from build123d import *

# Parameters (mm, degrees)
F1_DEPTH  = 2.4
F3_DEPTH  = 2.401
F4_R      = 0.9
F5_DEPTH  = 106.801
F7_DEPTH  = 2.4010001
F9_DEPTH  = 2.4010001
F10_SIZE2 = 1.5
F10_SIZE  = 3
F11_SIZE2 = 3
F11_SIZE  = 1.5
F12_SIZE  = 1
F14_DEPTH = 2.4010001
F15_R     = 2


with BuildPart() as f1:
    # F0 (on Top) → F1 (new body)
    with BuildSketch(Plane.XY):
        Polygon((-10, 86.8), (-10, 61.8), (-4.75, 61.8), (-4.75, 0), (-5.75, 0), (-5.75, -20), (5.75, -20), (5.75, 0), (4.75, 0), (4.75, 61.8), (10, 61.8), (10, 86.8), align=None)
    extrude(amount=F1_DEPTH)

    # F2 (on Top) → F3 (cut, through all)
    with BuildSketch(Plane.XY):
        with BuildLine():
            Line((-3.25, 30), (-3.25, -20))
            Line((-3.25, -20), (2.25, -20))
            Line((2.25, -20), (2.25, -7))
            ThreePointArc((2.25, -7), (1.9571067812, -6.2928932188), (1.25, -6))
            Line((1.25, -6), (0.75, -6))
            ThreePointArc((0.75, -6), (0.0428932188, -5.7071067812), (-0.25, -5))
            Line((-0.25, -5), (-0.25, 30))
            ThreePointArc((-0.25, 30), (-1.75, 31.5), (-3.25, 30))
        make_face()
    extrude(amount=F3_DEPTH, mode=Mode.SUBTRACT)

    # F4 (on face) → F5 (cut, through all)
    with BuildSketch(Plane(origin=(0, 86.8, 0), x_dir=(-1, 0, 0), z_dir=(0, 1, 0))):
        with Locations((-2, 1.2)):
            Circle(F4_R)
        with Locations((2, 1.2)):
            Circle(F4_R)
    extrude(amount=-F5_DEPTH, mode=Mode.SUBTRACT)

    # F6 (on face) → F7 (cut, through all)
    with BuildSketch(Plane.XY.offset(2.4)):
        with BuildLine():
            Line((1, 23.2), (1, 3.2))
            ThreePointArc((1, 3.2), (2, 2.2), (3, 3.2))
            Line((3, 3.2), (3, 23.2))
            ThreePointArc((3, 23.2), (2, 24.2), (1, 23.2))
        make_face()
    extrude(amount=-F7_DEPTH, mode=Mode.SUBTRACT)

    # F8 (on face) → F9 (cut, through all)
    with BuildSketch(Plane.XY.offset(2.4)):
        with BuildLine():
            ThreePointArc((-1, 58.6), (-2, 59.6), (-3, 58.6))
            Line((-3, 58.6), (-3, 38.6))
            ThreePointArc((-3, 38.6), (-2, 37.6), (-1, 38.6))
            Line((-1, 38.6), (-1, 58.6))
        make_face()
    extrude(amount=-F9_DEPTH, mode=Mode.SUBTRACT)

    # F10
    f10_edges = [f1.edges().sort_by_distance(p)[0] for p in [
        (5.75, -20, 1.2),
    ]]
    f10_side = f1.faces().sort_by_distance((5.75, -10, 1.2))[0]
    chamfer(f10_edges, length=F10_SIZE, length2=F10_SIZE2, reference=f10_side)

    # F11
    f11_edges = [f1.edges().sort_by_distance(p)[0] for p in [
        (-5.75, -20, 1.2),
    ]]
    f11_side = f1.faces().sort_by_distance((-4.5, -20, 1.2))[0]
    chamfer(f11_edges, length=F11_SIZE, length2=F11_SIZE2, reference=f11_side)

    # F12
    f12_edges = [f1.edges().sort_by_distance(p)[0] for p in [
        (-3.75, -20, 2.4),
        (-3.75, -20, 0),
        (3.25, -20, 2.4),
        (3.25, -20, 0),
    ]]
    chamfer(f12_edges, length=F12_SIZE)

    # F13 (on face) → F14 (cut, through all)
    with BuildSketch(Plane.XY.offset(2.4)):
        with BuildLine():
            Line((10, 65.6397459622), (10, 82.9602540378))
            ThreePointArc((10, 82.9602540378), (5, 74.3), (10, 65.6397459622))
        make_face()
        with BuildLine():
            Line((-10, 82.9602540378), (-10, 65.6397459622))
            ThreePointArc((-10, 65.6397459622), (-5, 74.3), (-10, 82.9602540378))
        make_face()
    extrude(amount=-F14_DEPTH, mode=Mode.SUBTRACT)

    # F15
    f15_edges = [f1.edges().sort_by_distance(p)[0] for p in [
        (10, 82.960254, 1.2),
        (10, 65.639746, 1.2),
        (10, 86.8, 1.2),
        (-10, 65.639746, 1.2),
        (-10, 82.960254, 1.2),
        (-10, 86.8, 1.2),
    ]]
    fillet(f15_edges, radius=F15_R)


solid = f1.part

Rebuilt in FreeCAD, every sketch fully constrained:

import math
import FreeCAD as App
import Part
import Sketcher


def edges_at(feature, points):
    """Names of the edges that pass closest to the given points."""
    edges = feature.Shape.Edges
    near = lambda p: min(range(len(edges)), key=lambda i: edges[i].distToShape(Part.Vertex(*p))[0])
    return sorted({f"Edge{near(p) + 1}" for p in points})


def add_polygon(sketch, points):
    """Adds a closed chain of lines whose ends are joined by coincident constraints."""
    first, n = sketch.GeometryCount, len(points)
    for a, b in zip(points, points[1:] + points[:1]):
        sketch.addGeometry(Part.LineSegment(App.Vector(*a, 0), App.Vector(*b, 0)), False)
    for i in range(n):
        sketch.addConstraint(Sketcher.Constraint("Coincident", first + i, 2, first + (i + 1) % n, 1))

doc = App.newDocument("Part")
body = doc.addObject("PartDesign::Body", "Body")

sketch1 = body.newObject("Sketcher::SketchObject", "Sketch")
sketch1.AttachmentSupport = (doc.getObject("XY_Plane"), [""])
sketch1.MapMode = "FlatFace"
add_polygon(sketch1, [(-10, 86.8), (-10, 61.8), (-4.8, 61.8), (-4.8, 0), (-5.8, 0), (-5.8, -20), (5.8, -20), (5.8, 0), (4.8, 0), (4.8, 61.8), (10, 61.8), (10, 86.8)])
sketch1.addConstraint(Sketcher.Constraint("Vertical", 0))
sketch1.addConstraint(Sketcher.Constraint("Horizontal", 1))
sketch1.addConstraint(Sketcher.Constraint("Vertical", 2))
sketch1.addConstraint(Sketcher.Constraint("Horizontal", 3))
sketch1.addConstraint(Sketcher.Constraint("Vertical", 4))
sketch1.addConstraint(Sketcher.Constraint("Horizontal", 5))
sketch1.addConstraint(Sketcher.Constraint("Vertical", 6))
sketch1.addConstraint(Sketcher.Constraint("Horizontal", 7))
sketch1.addConstraint(Sketcher.Constraint("Vertical", 8))
sketch1.addConstraint(Sketcher.Constraint("Horizontal", 9))
sketch1.addConstraint(Sketcher.Constraint("Vertical", 10))
sketch1.addConstraint(Sketcher.Constraint("Horizontal", 11))
sketch1.addConstraint(Sketcher.Constraint("Symmetric", 3, 2, 6, 2, -1, 1))
sketch1.addConstraint(Sketcher.Constraint("Symmetric", 2, 2, 7, 2, -2))
sketch1.addConstraint(Sketcher.Constraint("Symmetric", 0, 2, 9, 2, -2))
sketch1.addConstraint(Sketcher.Constraint("Equal", 11, 4))
sketch1.addConstraint(Sketcher.Constraint("DistanceX", 3, 2, 3, 1, 1.0))
sketch1.addConstraint(Sketcher.Constraint("DistanceX", 11, 2, 11, 1, 20.0))
sketch1.addConstraint(Sketcher.Constraint("DistanceY", 0, 2, 0, 1, 25.0))
sketch1.addConstraint(Sketcher.Constraint("DistanceX", 5, 1, 5, 2, 11.5))
sketch1.addConstraint(Sketcher.Constraint("DistanceY", 2, 2, 2, 1, 61.8))
pad1 = body.newObject("PartDesign::Pad", "Pad")
pad1.Profile = sketch1
pad1.Length = 2.4

sketch2 = body.newObject("Sketcher::SketchObject", "Sketch001")
sketch2.AttachmentSupport = (doc.getObject("XY_Plane"), [""])
sketch2.MapMode = "FlatFace"
sketch2.addGeometry(Part.LineSegment(App.Vector(-3.2, 30, 0), App.Vector(-3.2, -20, 0)), False)
sketch2.addGeometry(Part.LineSegment(App.Vector(-3.2, -20, 0), App.Vector(2.2, -20, 0)), False)
sketch2.addGeometry(Part.LineSegment(App.Vector(2.2, -20, 0), App.Vector(2.2, -7, 0)), False)
sketch2.addGeometry(Part.ArcOfCircle(Part.Circle(App.Vector(1.2, -7, 0), App.Vector(0, 0, 1), 1), math.radians(0), math.radians(90)), False)
sketch2.addGeometry(Part.LineSegment(App.Vector(1.2, -6, 0), App.Vector(0.8, -6, 0)), False)
sketch2.addGeometry(Part.ArcOfCircle(Part.Circle(App.Vector(0.8, -5, 0), App.Vector(0, 0, 1), 1), math.radians(180), math.radians(270)), False)
sketch2.addGeometry(Part.LineSegment(App.Vector(-0.2, -5, 0), App.Vector(-0.2, 30, 0)), False)
sketch2.addGeometry(Part.ArcOfCircle(Part.Circle(App.Vector(-1.8, 30, 0), App.Vector(0, 0, 1), 1.5), math.radians(0), math.radians(180)), False)
sketch2.addConstraint(Sketcher.Constraint("Coincident", 0, 2, 1, 1))
sketch2.addConstraint(Sketcher.Constraint("Coincident", 1, 2, 2, 1))
sketch2.addConstraint(Sketcher.Constraint("Tangent", 2, 2, 3, 1))
sketch2.addConstraint(Sketcher.Constraint("Tangent", 3, 2, 4, 1))
sketch2.addConstraint(Sketcher.Constraint("Tangent", 4, 2, 5, 2))
sketch2.addConstraint(Sketcher.Constraint("Tangent", 5, 1, 6, 1))
sketch2.addConstraint(Sketcher.Constraint("Tangent", 6, 2, 7, 1))
sketch2.addConstraint(Sketcher.Constraint("Tangent", 7, 2, 0, 1))
sketch2.addConstraint(Sketcher.Constraint("Vertical", 0))
sketch2.addConstraint(Sketcher.Constraint("Horizontal", 1))
sketch2.addConstraint(Sketcher.Constraint("Vertical", 2))
sketch2.addConstraint(Sketcher.Constraint("Horizontal", 4))
sketch2.addConstraint(Sketcher.Constraint("Vertical", 6))
sketch2.addConstraint(Sketcher.Constraint("Equal", 3, 5))
sketch2.addConstraint(Sketcher.Constraint("Radius", 3, 1.0))
sketch2.addConstraint(Sketcher.Constraint("Radius", 7, 1.5))
sketch2.addConstraint(Sketcher.Constraint("DistanceY", 0, 2, 0, 1, 50.0))
sketch2.addConstraint(Sketcher.Constraint("DistanceY", 2, 1, 2, 2, 13.0))
sketch2.addConstraint(Sketcher.Constraint("DistanceX", 1, 1, 1, 2, 5.5))
sketch2.addConstraint(Sketcher.Constraint("DistanceY", 3, 3, -1, 1, 7.0))
sketch2.addConstraint(Sketcher.Constraint("DistanceX", -1, 1, 3, 3, 1.25))
pocket1 = body.newObject("PartDesign::Pocket", "Pocket")
pocket1.Profile = sketch2
pocket1.Type = "ThroughAll"
pocket1.Reversed = True

sketch3 = body.newObject("Sketcher::SketchObject", "Sketch002")
sketch3.AttachmentSupport = (doc.getObject("XZ_Plane"), [""])
sketch3.MapMode = "FlatFace"
sketch3.AttachmentOffset = App.Placement(App.Vector(0, 0, -86.8), App.Rotation())
sketch3.addGeometry(Part.Circle(App.Vector(2, 1.2, 0), App.Vector(0, 0, 1), 0.9), False)
sketch3.addGeometry(Part.Circle(App.Vector(-2, 1.2, 0), App.Vector(0, 0, 1), 0.9), False)
sketch3.addConstraint(Sketcher.Constraint("Equal", 0, 1))
sketch3.addConstraint(Sketcher.Constraint("Symmetric", 0, 3, 1, 3, -2))
sketch3.addConstraint(Sketcher.Constraint("Diameter", 0, 1.8))
sketch3.addConstraint(Sketcher.Constraint("DistanceX", -1, 1, 0, 3, 2.0))
sketch3.addConstraint(Sketcher.Constraint("DistanceY", -1, 1, 0, 3, 1.2))
pocket2 = body.newObject("PartDesign::Pocket", "Pocket001")
pocket2.Profile = sketch3
pocket2.Type = "ThroughAll"
pocket2.Reversed = True

sketch4 = body.newObject("Sketcher::SketchObject", "Sketch003")
sketch4.AttachmentSupport = (doc.getObject("XY_Plane"), [""])
sketch4.MapMode = "FlatFace"
sketch4.AttachmentOffset = App.Placement(App.Vector(0, 0, 2.4), App.Rotation())
sketch4.addGeometry(Part.LineSegment(App.Vector(1, 23.2, 0), App.Vector(1, 3.2, 0)), False)
sketch4.addGeometry(Part.ArcOfCircle(Part.Circle(App.Vector(2, 3.2, 0), App.Vector(0, 0, 1), 1), math.radians(180), math.radians(360)), False)
sketch4.addGeometry(Part.LineSegment(App.Vector(3, 3.2, 0), App.Vector(3, 23.2, 0)), False)
sketch4.addGeometry(Part.ArcOfCircle(Part.Circle(App.Vector(2, 23.2, 0), App.Vector(0, 0, 1), 1), math.radians(0), math.radians(180)), False)
sketch4.addConstraint(Sketcher.Constraint("Tangent", 0, 2, 1, 1))
sketch4.addConstraint(Sketcher.Constraint("Tangent", 1, 2, 2, 1))
sketch4.addConstraint(Sketcher.Constraint("Tangent", 2, 2, 3, 1))
sketch4.addConstraint(Sketcher.Constraint("Tangent", 3, 2, 0, 1))
sketch4.addConstraint(Sketcher.Constraint("Vertical", 0))
sketch4.addConstraint(Sketcher.Constraint("Vertical", 2))
sketch4.addConstraint(Sketcher.Constraint("Radius", 1, 1.0))
sketch4.addConstraint(Sketcher.Constraint("DistanceY", 0, 2, 0, 1, 20.0))
sketch4.addConstraint(Sketcher.Constraint("DistanceX", -1, 1, 1, 3, 2.0))
sketch4.addConstraint(Sketcher.Constraint("DistanceY", -1, 1, 1, 3, 3.2))
pocket3 = body.newObject("PartDesign::Pocket", "Pocket002")
pocket3.Profile = sketch4
pocket3.Type = "ThroughAll"

sketch5 = body.newObject("Sketcher::SketchObject", "Sketch004")
sketch5.AttachmentSupport = (doc.getObject("XY_Plane"), [""])
sketch5.MapMode = "FlatFace"
sketch5.AttachmentOffset = App.Placement(App.Vector(0, 0, 2.4), App.Rotation())
sketch5.addGeometry(Part.ArcOfCircle(Part.Circle(App.Vector(-2, 58.6, 0), App.Vector(0, 0, 1), 1), math.radians(0), math.radians(180)), False)
sketch5.addGeometry(Part.LineSegment(App.Vector(-3, 58.6, 0), App.Vector(-3, 38.6, 0)), False)
sketch5.addGeometry(Part.ArcOfCircle(Part.Circle(App.Vector(-2, 38.6, 0), App.Vector(0, 0, 1), 1), math.radians(180), math.radians(360)), False)
sketch5.addGeometry(Part.LineSegment(App.Vector(-1, 38.6, 0), App.Vector(-1, 58.6, 0)), False)
sketch5.addConstraint(Sketcher.Constraint("Tangent", 0, 2, 1, 1))
sketch5.addConstraint(Sketcher.Constraint("Tangent", 1, 2, 2, 1))
sketch5.addConstraint(Sketcher.Constraint("Tangent", 2, 2, 3, 1))
sketch5.addConstraint(Sketcher.Constraint("Tangent", 3, 2, 0, 1))
sketch5.addConstraint(Sketcher.Constraint("Vertical", 1))
sketch5.addConstraint(Sketcher.Constraint("Vertical", 3))
sketch5.addConstraint(Sketcher.Constraint("Radius", 0, 1.0))
sketch5.addConstraint(Sketcher.Constraint("DistanceY", 1, 2, 1, 1, 20.0))
sketch5.addConstraint(Sketcher.Constraint("DistanceX", 0, 3, -1, 1, 2.0))
sketch5.addConstraint(Sketcher.Constraint("DistanceY", -1, 1, 0, 3, 58.6))
pocket4 = body.newObject("PartDesign::Pocket", "Pocket003")
pocket4.Profile = sketch5
pocket4.Type = "ThroughAll"
doc.recompute()

chamfer = body.newObject("PartDesign::Chamfer", "Chamfer")
chamfer.Base = (pocket4, edges_at(pocket4, [(5.75, -20, 1.2)]))
chamfer.ChamferType = "Two distances"
chamfer.Size = 3
chamfer.Size2 = 1.5
doc.recompute()

chamfer2 = body.newObject("PartDesign::Chamfer", "Chamfer001")
chamfer2.Base = (chamfer, edges_at(chamfer, [(-5.75, -20, 1.2)]))
chamfer2.ChamferType = "Two distances"
chamfer2.Size = 1.5
chamfer2.Size2 = 3
doc.recompute()

chamfer3 = body.newObject("PartDesign::Chamfer", "Chamfer002")
chamfer3.Base = (chamfer2, edges_at(chamfer2, [
    (-3.75, -20, 2.4),
    (-3.75, -20, 0),
    (3.25, -20, 2.4),
    (3.25, -20, 0),
]))
chamfer3.Size = 1

sketch6 = body.newObject("Sketcher::SketchObject", "Sketch005")
sketch6.AttachmentSupport = (doc.getObject("XY_Plane"), [""])
sketch6.MapMode = "FlatFace"
sketch6.AttachmentOffset = App.Placement(App.Vector(0, 0, 2.4), App.Rotation())
sketch6.addGeometry(Part.LineSegment(App.Vector(10, 66, 0), App.Vector(10, 83, 0)), False)
sketch6.addGeometry(Part.ArcOfCircle(Part.Circle(App.Vector(15, 74, 0), App.Vector(0, 0, 1), 10), math.radians(120), math.radians(240)), False)
sketch6.addGeometry(Part.LineSegment(App.Vector(-10, 83, 0), App.Vector(-10, 66, 0)), False)
sketch6.addGeometry(Part.ArcOfCircle(Part.Circle(App.Vector(-15, 74, 0), App.Vector(0, 0, 1), 10), math.radians(-60), math.radians(60)), False)
sketch6.addConstraint(Sketcher.Constraint("Coincident", 0, 1, 1, 2))
sketch6.addConstraint(Sketcher.Constraint("Coincident", 1, 1, 0, 2))
sketch6.addConstraint(Sketcher.Constraint("Coincident", 2, 1, 3, 2))
sketch6.addConstraint(Sketcher.Constraint("Coincident", 3, 1, 2, 2))
sketch6.addConstraint(Sketcher.Constraint("Vertical", 0))
sketch6.addConstraint(Sketcher.Constraint("Vertical", 2))
sketch6.addConstraint(Sketcher.Constraint("Equal", 1, 3))
sketch6.addConstraint(Sketcher.Constraint("Symmetric", 1, 3, 3, 3, -2))
sketch6.addConstraint(Sketcher.Constraint("Horizontal", 1, 1, 2, 1))
sketch6.addConstraint(Sketcher.Constraint("Radius", 1, 10.0))
sketch6.addConstraint(Sketcher.Constraint("DistanceX", -1, 1, 1, 3, 15.0))
sketch6.addConstraint(Sketcher.Constraint("DistanceX", -1, 1, 0, 1, 10.0))
sketch6.addConstraint(Sketcher.Constraint("DistanceY", -1, 1, 1, 3, 74.3))
pocket5 = body.newObject("PartDesign::Pocket", "Pocket004")
pocket5.Profile = sketch6
pocket5.Type = "ThroughAll"
doc.recompute()

fillet = body.newObject("PartDesign::Fillet", "Fillet")
fillet.Base = (pocket5, edges_at(pocket5, [
    (10, 82.96, 1.2),
    (10, 65.64, 1.2),
    (10, 86.8, 1.2),
    (-10, 65.64, 1.2),
    (-10, 82.96, 1.2),
    (-10, 86.8, 1.2),
]))
fillet.Radius = 2

doc.recompute()
